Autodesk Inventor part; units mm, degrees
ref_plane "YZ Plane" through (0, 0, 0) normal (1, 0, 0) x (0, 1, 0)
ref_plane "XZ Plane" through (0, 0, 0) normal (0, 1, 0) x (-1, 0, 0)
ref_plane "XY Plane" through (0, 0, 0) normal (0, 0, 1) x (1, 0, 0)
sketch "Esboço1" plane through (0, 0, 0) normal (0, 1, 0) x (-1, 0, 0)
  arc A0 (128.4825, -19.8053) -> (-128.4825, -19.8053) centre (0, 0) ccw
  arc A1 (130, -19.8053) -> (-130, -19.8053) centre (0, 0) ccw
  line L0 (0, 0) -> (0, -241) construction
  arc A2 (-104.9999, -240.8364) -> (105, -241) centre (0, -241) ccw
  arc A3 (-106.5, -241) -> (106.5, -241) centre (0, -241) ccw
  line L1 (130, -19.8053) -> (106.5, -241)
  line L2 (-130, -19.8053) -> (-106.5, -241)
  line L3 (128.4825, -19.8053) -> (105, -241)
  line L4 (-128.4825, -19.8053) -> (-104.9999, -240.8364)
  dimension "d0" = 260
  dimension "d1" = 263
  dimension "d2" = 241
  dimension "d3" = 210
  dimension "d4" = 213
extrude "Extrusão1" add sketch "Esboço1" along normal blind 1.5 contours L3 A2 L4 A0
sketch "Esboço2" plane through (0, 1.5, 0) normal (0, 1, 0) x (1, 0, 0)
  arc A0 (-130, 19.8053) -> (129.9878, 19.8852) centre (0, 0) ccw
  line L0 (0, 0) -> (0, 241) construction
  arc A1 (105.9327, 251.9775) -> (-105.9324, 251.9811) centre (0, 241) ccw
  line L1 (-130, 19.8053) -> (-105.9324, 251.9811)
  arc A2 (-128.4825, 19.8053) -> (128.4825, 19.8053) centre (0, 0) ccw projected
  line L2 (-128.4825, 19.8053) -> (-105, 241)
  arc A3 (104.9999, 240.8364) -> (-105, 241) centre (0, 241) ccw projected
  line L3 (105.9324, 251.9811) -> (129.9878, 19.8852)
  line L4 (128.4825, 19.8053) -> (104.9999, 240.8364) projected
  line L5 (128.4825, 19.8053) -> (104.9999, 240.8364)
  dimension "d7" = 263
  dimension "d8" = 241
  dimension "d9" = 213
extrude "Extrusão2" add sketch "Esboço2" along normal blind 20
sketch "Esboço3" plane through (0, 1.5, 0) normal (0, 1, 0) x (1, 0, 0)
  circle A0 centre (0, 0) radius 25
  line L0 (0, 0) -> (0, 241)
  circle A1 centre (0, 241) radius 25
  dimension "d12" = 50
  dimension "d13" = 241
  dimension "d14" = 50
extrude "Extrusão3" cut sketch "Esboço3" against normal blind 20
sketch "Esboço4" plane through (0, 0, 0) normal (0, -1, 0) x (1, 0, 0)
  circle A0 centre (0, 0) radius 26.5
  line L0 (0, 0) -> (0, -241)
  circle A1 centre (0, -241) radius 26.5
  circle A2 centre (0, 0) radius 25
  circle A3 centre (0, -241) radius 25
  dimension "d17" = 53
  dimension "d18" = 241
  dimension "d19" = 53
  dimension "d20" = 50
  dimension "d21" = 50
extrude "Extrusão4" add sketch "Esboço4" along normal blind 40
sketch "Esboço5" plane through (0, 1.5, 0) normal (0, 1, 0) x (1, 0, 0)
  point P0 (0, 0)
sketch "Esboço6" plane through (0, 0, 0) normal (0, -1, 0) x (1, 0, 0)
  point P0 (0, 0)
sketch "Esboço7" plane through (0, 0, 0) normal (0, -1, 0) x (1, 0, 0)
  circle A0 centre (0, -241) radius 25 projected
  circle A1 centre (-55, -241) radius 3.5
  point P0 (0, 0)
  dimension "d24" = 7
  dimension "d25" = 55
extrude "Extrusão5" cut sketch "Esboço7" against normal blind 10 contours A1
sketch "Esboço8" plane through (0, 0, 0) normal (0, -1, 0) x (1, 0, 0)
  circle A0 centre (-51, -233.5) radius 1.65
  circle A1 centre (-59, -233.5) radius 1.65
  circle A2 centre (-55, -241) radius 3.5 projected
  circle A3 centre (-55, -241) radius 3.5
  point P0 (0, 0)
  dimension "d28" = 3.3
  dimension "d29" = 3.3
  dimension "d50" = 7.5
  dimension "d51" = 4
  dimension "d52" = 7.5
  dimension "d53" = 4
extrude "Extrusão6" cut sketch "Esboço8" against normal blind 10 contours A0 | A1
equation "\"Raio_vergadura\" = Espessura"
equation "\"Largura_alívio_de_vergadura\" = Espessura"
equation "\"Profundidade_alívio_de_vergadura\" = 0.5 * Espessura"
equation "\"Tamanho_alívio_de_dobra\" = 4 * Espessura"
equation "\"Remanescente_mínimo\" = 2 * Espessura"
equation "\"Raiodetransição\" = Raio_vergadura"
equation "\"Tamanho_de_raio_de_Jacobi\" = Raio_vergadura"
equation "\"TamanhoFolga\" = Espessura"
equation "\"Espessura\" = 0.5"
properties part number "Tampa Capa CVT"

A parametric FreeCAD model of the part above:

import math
import FreeCAD as App
import Part
import Sketcher

V = App.Vector

doc = App.newDocument("Part")
body = doc.addObject("PartDesign::Body", "Body")
body.AllowCompound = True

# Sketch on XZ plane
sketch1 = body.newObject("Sketcher::SketchObject", "Sketch")
sketch1.AttachmentSupport = (doc.getObject("XZ_Plane"), [""])
sketch1.MapMode = "FlatFace"
sketch1.addGeometry(Part.LineSegment(V(-105, -241, 0), V(-128.4825, -19.8053, 0)), False)
sketch1.addGeometry(Part.ArcOfCircle(Part.Circle(V(0, 0, 0), V(0, 0, 1), 130.00001), math.radians(-8.763047), math.radians(188.763047)), False)
sketch1.addGeometry(Part.LineSegment(V(128.4825, -19.8053, 0), V(104.9999, -240.8364, 0)), False)
sketch1.addGeometry(Part.ArcOfCircle(Part.Circle(V(0, -241, 0), V(0, 0, 1), 105.000027), math.radians(180), math.radians(360.089272)), False)
sketch1.addConstraint(Sketcher.Constraint("Coincident", 0, 2, 1, 2))
sketch1.addConstraint(Sketcher.Constraint("Coincident", 1, 1, 2, 1))
sketch1.addConstraint(Sketcher.Constraint("Coincident", 2, 2, 3, 2))
sketch1.addConstraint(Sketcher.Constraint("Coincident", 3, 1, 0, 1))
sketch1.addConstraint(Sketcher.Constraint("Coincident", 1, 3, -1, 1))
sketch1.addConstraint(Sketcher.Constraint("PointOnObject", 3, 3, -2))
sketch1.addConstraint(Sketcher.Constraint("Radius", 1, 130.0))
sketch1.addConstraint(Sketcher.Constraint("Radius", 3, 105.0))
sketch1.addConstraint(Sketcher.Constraint("DistanceY", 3, 3, -1, 1, 241.0))
sketch1.addConstraint(Sketcher.Constraint("DistanceY", 3, 1, -1, 1, 241.0))
sketch1.addConstraint(Sketcher.Constraint("Distance", 2, 222.275))
sketch1.addConstraint(Sketcher.Constraint("DistanceX", 0, 2, 1, 1, 256.965))
sketch1.addConstraint(Sketcher.Constraint("DistanceY", 2, 2, 0, 2, 221.031))
pad1 = body.newObject("PartDesign::Pad", "Pad")
pad1.Profile = sketch1
pad1.Length = 1.5
pad1.Reversed = True

# Sketch on XZ plane
sketch2 = body.newObject("Sketcher::SketchObject", "Sketch001")
sketch2.AttachmentSupport = (doc.getObject("XZ_Plane"), [""])
sketch2.MapMode = "FlatFace"
sketch2.AttachmentOffset = App.Placement(V(0, 0, -1.5), App.Rotation())
sketch2.addGeometry(Part.LineSegment(V(-106, -252, 0), V(-130, -20, 0)), False)
sketch2.addGeometry(Part.ArcOfCircle(Part.Circle(V(0, 0, 0), V(0, 0, 1), 131), math.radians(-9), math.radians(189)), False)
sketch2.addGeometry(Part.LineSegment(V(130, -20, 0), V(106, -252, 0)), False)
sketch2.addGeometry(Part.ArcOfCircle(Part.Circle(V(0, -241, 0), V(0, 0, 1), 106), math.radians(-174), math.radians(-6)), False)
sketch2.addGeometry(Part.ArcOfCircle(Part.Circle(V(0, 0, 0), V(0, 0, 1), 130), math.radians(-9), math.radians(189)), False)
sketch2.addGeometry(Part.LineSegment(V(-128, -20, 0), V(-105, -241, 0)), False)
sketch2.addGeometry(Part.ArcOfCircle(Part.Circle(V(0, -241, 0), V(0, 0, 1), 105), math.radians(180), math.radians(360)), False)
sketch2.addGeometry(Part.LineSegment(V(105, -241, 0), V(128, -20, 0)), False)
sketch2.addConstraint(Sketcher.Constraint("Coincident", 0, 2, 1, 2))
sketch2.addConstraint(Sketcher.Constraint("Coincident", 1, 1, 2, 1))
sketch2.addConstraint(Sketcher.Constraint("Tangent", 2, 2, 3, 2))
sketch2.addConstraint(Sketcher.Constraint("Tangent", 3, 1, 0, 1))
sketch2.addConstraint(Sketcher.Constraint("Coincident", 4, 2, 5, 1))
sketch2.addConstraint(Sketcher.Constraint("Coincident", 5, 2, 6, 1))
sketch2.addConstraint(Sketcher.Constraint("Coincident", 6, 2, 7, 1))
sketch2.addConstraint(Sketcher.Constraint("Coincident", 7, 2, 4, 1))
sketch2.addConstraint(Sketcher.Constraint("Coincident", 1, 3, -1, 1))
sketch2.addConstraint(Sketcher.Constraint("Coincident", 4, 3, -1, 1))
sketch2.addConstraint(Sketcher.Constraint("Coincident", 6, 3, 3, 3))
sketch2.addConstraint(Sketcher.Constraint("PointOnObject", 3, 3, -2))
sketch2.addConstraint(Sketcher.Constraint("Horizontal", 0, 2, 4, 2))
sketch2.addConstraint(Sketcher.Constraint("Horizontal", 6, 3, 5, 2))
sketch2.addConstraint(Sketcher.Constraint("Horizontal", 4, 2, 7, 2))
sketch2.addConstraint(Sketcher.Constraint("Radius", 1, 131.5))
sketch2.addConstraint(Sketcher.Constraint("Radius", 3, 106.5))
sketch2.addConstraint(Sketcher.Constraint("DistanceY", 3, 3, -1, 1, 241.0))
sketch2.addConstraint(Sketcher.Constraint("Radius", 4, 130.0))
sketch2.addConstraint(Sketcher.Constraint("Radius", 6, 105.0))
sketch2.addConstraint(Sketcher.Constraint("DistanceX", 0, 2, -1, 1, 130.0))
sketch2.addConstraint(Sketcher.Constraint("DistanceY", 1, 1, 0, 2, 0.08))
sketch2.addConstraint(Sketcher.Constraint("Distance", 7, 222.275))
pad2 = body.newObject("PartDesign::Pad", "Pad001")
pad2.Profile = sketch2
pad2.Length = 20
pad2.Reversed = True

# Sketch on XZ plane
sketch3 = body.newObject("Sketcher::SketchObject", "Sketch002")
sketch3.AttachmentSupport = (doc.getObject("XZ_Plane"), [""])
sketch3.MapMode = "FlatFace"
sketch3.AttachmentOffset = App.Placement(V(0, 0, -1.5), App.Rotation())
sketch3.addGeometry(Part.Circle(V(0, 0, 0), V(0, 0, 1), 25), False)
sketch3.addGeometry(Part.Circle(V(0, -241, 0), V(0, 0, 1), 25), False)
sketch3.addConstraint(Sketcher.Constraint("Coincident", 0, 3, -1, 1))
sketch3.addConstraint(Sketcher.Constraint("Equal", 0, 1))
sketch3.addConstraint(Sketcher.Constraint("PointOnObject", 1, 3, -2))
sketch3.addConstraint(Sketcher.Constraint("Diameter", 0, 50.0))
sketch3.addConstraint(Sketcher.Constraint("DistanceY", 1, 3, -1, 1, 241.0))
pocket1 = body.newObject("PartDesign::Pocket", "Pocket")
pocket1.Profile = sketch3
pocket1.Length = 20
pocket1.Reversed = True

# Sketch on XZ plane
sketch4 = body.newObject("Sketcher::SketchObject", "Sketch003")
sketch4.AttachmentSupport = (doc.getObject("XZ_Plane"), [""])
sketch4.MapMode = "FlatFace"
sketch4.addGeometry(Part.Circle(V(0, 0, 0), V(0, 0, 1), 26), False)
sketch4.addGeometry(Part.Circle(V(0, 0, 0), V(0, 0, 1), 25), False)
sketch4.addGeometry(Part.Circle(V(0, -241, 0), V(0, 0, 1), 26), False)
sketch4.addGeometry(Part.Circle(V(0, -241, 0), V(0, 0, 1), 25), False)
sketch4.addConstraint(Sketcher.Constraint("Coincident", 0, 3, -1, 1))
sketch4.addConstraint(Sketcher.Constraint("Coincident", 1, 3, -1, 1))
sketch4.addConstraint(Sketcher.Constraint("Coincident", 3, 3, 2, 3))
sketch4.addConstraint(Sketcher.Constraint("Equal", 0, 2))
sketch4.addConstraint(Sketcher.Constraint("Equal", 1, 3))
sketch4.addConstraint(Sketcher.Constraint("PointOnObject", 2, 3, -2))
sketch4.addConstraint(Sketcher.Constraint("Diameter", 0, 53.0))
sketch4.addConstraint(Sketcher.Constraint("Diameter", 1, 50.0))
sketch4.addConstraint(Sketcher.Constraint("DistanceY", 2, 3, -1, 1, 241.0))
pad3 = body.newObject("PartDesign::Pad", "Pad002")
pad3.Profile = sketch4
pad3.Length = 40

# Sketch on XZ plane
sketch5 = body.newObject("Sketcher::SketchObject", "Sketch004")
sketch5.AttachmentSupport = (doc.getObject("XZ_Plane"), [""])
sketch5.MapMode = "FlatFace"
sketch5.addGeometry(Part.Circle(V(-55, -241, 0), V(0, 0, 1), 3.5), False)
sketch5.addConstraint(Sketcher.Constraint("Diameter", 0, 7.0))
sketch5.addConstraint(Sketcher.Constraint("DistanceX", 0, 3, -1, 1, 55.0))
sketch5.addConstraint(Sketcher.Constraint("DistanceY", 0, 3, -1, 1, 241.0))
pocket2 = body.newObject("PartDesign::Pocket", "Pocket001")
pocket2.Profile = sketch5
pocket2.Length = 10

# Sketch on XZ plane
sketch6 = body.newObject("Sketcher::SketchObject", "Sketch005")
sketch6.AttachmentSupport = (doc.getObject("XZ_Plane"), [""])
sketch6.MapMode = "FlatFace"
sketch6.addGeometry(Part.Circle(V(-51, -233.5, 0), V(0, 0, 1), 1.6), False)
sketch6.addGeometry(Part.Circle(V(-59, -233.5, 0), V(0, 0, 1), 1.6), False)
sketch6.addConstraint(Sketcher.Constraint("Equal", 0, 1))
sketch6.addConstraint(Sketcher.Constraint("Horizontal", 0, 3, 1, 3))
sketch6.addConstraint(Sketcher.Constraint("Diameter", 0, 3.3))
sketch6.addConstraint(Sketcher.Constraint("DistanceX", 0, 3, -1, 1, 51.0))
sketch6.addConstraint(Sketcher.Constraint("DistanceX", 1, 3, -1, 1, 59.0))
sketch6.addConstraint(Sketcher.Constraint("DistanceY", 0, 3, -1, 1, 233.5))
pocket3 = body.newObject("PartDesign::Pocket", "Pocket002")
pocket3.Profile = sketch6
pocket3.Length = 10

doc.recompute()
